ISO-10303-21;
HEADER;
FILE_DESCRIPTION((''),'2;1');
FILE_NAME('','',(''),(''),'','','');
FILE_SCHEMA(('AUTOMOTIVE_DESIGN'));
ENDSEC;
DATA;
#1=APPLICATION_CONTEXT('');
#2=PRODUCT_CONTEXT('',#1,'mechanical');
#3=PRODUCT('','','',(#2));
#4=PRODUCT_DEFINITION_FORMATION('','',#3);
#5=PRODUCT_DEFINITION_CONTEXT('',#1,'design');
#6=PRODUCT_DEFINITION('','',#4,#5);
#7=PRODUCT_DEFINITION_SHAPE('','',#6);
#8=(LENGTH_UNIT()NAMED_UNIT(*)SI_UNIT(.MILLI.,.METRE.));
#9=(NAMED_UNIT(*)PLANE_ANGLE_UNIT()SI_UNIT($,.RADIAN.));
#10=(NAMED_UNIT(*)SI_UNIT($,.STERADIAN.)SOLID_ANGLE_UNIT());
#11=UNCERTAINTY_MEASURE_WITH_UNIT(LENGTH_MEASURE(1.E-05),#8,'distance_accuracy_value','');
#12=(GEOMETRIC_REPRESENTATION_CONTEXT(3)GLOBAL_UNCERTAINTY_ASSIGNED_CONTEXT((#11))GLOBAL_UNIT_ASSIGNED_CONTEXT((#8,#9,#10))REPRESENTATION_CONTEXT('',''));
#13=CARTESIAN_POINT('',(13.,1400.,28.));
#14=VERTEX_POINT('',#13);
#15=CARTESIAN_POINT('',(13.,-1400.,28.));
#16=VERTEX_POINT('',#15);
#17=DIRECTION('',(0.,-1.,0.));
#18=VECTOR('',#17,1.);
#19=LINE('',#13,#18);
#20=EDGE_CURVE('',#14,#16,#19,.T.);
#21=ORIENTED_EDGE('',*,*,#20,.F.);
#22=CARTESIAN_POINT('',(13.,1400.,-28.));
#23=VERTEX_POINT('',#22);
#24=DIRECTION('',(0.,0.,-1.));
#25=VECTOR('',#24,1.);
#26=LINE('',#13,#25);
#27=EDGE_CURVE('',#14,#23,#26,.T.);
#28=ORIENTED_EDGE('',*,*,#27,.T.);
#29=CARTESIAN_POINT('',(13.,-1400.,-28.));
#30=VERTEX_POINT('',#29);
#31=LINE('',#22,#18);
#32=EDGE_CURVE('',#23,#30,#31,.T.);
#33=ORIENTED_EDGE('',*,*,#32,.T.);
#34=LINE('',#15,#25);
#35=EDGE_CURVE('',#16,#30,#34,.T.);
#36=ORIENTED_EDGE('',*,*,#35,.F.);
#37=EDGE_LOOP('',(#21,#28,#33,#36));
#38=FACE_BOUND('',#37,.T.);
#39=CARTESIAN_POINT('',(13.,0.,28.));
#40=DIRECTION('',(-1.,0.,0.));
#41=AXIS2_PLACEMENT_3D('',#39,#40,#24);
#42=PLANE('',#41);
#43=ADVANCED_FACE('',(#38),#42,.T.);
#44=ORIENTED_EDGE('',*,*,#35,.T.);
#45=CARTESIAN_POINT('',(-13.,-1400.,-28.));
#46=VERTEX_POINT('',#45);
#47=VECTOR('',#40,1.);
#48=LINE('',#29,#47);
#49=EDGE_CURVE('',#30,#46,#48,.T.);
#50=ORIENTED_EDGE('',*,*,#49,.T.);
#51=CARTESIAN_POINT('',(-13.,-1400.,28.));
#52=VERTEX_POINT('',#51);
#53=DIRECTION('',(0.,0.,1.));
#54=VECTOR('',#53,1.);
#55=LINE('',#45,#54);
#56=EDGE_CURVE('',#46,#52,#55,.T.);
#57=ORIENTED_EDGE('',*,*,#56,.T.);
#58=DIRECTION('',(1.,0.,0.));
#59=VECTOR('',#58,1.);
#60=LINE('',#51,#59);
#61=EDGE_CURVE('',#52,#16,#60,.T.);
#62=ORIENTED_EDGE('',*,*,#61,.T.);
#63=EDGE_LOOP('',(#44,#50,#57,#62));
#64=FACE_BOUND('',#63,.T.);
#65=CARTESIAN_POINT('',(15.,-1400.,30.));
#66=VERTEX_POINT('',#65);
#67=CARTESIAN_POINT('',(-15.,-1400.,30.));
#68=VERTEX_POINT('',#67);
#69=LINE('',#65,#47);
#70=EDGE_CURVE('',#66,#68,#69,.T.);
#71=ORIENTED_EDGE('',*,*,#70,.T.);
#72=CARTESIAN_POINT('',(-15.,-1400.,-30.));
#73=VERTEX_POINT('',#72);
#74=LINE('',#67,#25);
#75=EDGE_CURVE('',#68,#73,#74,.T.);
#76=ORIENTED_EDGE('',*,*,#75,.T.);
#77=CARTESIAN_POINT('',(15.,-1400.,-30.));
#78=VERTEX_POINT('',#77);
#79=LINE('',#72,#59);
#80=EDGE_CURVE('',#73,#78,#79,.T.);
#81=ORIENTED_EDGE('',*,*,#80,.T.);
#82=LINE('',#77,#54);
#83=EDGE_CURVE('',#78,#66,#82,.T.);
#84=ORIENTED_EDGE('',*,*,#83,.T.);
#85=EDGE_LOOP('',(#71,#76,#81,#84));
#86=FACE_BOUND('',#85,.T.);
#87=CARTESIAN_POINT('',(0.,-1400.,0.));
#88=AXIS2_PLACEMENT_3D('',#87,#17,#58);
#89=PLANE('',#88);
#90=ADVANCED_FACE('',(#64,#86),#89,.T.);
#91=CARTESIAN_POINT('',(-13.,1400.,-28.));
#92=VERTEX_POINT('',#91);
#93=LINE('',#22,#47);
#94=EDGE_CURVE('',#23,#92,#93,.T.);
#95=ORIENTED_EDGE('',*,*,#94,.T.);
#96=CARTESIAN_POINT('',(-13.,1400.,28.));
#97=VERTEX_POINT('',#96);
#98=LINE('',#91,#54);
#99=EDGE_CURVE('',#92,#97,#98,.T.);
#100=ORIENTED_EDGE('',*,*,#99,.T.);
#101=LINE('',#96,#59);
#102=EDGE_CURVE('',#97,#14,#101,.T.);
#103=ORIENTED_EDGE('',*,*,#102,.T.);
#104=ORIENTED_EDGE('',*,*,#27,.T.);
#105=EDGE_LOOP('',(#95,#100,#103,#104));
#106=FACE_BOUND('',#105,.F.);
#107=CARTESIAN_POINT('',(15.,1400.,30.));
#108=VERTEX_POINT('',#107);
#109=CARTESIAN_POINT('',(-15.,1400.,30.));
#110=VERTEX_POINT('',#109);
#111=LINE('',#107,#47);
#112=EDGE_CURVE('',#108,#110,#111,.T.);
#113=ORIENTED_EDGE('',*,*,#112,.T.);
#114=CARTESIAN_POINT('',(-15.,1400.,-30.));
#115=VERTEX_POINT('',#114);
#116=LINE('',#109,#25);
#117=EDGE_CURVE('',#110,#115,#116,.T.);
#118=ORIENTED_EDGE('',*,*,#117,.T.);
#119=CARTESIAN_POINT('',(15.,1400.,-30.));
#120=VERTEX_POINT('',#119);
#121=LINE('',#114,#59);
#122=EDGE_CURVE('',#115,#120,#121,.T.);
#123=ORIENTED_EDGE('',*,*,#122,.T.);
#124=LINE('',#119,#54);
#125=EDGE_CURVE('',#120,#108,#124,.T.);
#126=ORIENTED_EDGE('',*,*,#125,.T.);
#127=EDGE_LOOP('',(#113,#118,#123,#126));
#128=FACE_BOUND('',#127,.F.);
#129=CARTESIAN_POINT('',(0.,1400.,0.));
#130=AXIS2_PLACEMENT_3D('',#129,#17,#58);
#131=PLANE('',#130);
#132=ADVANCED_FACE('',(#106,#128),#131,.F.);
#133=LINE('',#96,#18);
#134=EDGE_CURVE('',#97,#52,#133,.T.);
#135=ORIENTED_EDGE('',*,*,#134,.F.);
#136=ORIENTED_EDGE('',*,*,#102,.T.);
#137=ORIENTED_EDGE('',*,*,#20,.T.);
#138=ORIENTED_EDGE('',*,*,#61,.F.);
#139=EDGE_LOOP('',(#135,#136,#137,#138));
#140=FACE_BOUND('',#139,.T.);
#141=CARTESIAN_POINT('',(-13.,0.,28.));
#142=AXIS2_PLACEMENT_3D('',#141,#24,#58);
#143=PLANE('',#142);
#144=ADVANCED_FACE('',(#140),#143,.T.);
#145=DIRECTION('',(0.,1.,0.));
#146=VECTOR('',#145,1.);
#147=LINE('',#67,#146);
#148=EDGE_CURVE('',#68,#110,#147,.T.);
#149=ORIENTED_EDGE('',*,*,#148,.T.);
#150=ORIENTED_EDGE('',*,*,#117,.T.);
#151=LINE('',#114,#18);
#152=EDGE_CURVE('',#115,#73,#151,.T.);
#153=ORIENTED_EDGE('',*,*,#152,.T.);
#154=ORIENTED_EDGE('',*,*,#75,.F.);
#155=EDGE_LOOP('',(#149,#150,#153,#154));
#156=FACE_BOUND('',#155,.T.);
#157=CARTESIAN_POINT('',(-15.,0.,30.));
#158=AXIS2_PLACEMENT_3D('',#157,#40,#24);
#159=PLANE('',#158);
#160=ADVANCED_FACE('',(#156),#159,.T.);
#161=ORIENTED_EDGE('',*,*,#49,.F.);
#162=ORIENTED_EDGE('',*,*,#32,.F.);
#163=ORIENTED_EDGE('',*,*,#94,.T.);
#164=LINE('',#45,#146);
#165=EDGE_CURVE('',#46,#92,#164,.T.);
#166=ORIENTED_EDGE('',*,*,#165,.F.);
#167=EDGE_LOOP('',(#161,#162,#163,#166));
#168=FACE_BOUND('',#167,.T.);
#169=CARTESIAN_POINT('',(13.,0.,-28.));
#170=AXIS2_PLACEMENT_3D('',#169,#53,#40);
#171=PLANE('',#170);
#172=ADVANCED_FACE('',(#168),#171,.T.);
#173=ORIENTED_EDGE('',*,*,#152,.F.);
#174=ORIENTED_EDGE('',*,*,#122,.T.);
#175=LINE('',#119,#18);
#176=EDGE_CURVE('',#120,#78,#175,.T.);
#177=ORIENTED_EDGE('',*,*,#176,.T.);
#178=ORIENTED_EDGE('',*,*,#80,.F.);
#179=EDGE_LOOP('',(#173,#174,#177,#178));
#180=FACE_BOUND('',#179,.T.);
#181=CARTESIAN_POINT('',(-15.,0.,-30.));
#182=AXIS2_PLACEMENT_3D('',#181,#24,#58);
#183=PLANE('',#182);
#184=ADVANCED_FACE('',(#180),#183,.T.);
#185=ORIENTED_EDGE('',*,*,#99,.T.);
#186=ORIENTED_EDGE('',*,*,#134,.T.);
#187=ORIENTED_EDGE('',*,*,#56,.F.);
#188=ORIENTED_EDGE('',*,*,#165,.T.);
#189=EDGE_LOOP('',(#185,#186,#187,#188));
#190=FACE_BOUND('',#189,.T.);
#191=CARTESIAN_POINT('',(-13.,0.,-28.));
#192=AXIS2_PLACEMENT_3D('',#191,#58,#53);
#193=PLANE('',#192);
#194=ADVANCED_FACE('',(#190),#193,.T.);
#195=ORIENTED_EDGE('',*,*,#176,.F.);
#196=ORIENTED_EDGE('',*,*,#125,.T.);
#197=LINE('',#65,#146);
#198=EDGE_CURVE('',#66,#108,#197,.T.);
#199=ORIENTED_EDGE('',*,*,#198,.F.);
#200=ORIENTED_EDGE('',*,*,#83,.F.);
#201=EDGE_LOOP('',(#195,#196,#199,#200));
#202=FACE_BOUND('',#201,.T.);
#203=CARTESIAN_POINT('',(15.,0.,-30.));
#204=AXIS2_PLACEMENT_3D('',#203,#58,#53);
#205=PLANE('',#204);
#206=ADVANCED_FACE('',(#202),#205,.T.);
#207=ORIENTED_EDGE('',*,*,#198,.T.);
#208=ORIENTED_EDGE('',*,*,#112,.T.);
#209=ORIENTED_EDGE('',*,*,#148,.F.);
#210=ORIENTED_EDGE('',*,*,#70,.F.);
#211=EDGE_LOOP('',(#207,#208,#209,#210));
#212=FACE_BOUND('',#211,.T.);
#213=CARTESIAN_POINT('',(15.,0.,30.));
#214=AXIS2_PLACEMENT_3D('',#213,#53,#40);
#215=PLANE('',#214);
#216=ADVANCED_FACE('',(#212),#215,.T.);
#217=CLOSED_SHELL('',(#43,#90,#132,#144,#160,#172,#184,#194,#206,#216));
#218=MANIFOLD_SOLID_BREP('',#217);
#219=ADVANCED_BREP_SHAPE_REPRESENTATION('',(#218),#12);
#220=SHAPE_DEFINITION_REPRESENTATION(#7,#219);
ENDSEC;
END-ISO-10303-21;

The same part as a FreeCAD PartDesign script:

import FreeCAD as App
import Part
import Sketcher
Q = App.Units.Quantity


def add_polygon(sketch, points):
    """Adds a closed chain of lines whose ends are joined by coincident constraints."""
    first, n = sketch.GeometryCount, len(points)
    for a, b in zip(points, points[1:] + points[:1]):
        sketch.addGeometry(Part.LineSegment(App.Vector(*a, 0), App.Vector(*b, 0)), False)
    for i in range(n):
        sketch.addConstraint(Sketcher.Constraint("Coincident", first + i, 2, first + (i + 1) % n, 1))

doc = App.newDocument("Part")
params = doc.addObject("Spreadsheet::Sheet", "Params")
for row, (alias, value) in enumerate([
    ("sketch1_width", "30 mm"),
    ("sketch1_width2", "26 mm"),
    ("sketch1_height", "60 mm"),
    ("sketch1_height2", "56 mm"),
    ("pad1_length", "2800 mm"),
], start=1):
    params.set(f"A{row}", alias)
    params.set(f"B{row}", "=" + value)
    params.setAlias(f"B{row}", alias)

body = doc.addObject("PartDesign::Body", "Body")

# Sketch on XZ plane
sketch1 = doc.addObject("Sketcher::SketchObject", "Sketch")
body.addObject(sketch1)
sketch1.AttachmentSupport = (doc.XZ_Plane, [""])
sketch1.MapMode = "FlatFace"
add_polygon(sketch1, [(-15, 30), (-15, -30), (15, -30), (15, 30)])  # lines 0-3
add_polygon(sketch1, [(-13, -28), (-13, 28), (13, 28), (13, -28)])  # lines 4-7
sketch1.addConstraint(Sketcher.Constraint("Vertical", 0))
sketch1.addConstraint(Sketcher.Constraint("Horizontal", 1))
sketch1.addConstraint(Sketcher.Constraint("Vertical", 2))
sketch1.addConstraint(Sketcher.Constraint("Horizontal", 3))
sketch1.addConstraint(Sketcher.Constraint("Vertical", 4))
sketch1.addConstraint(Sketcher.Constraint("Horizontal", 5))
sketch1.addConstraint(Sketcher.Constraint("Vertical", 6))
sketch1.addConstraint(Sketcher.Constraint("Horizontal", 7))
sketch1.addConstraint(Sketcher.Constraint("Symmetric", 0, 2, 2, 2, -1, 1))
sketch1.addConstraint(Sketcher.Constraint("Symmetric", 4, 2, 6, 2, -1, 1))
sketch1.addConstraint(Sketcher.Constraint("DistanceX", 1, 1, 1, 2, Q("30 mm")))
sketch1.addConstraint(Sketcher.Constraint("DistanceX", 5, 1, 5, 2, Q("26 mm")))
sketch1.addConstraint(Sketcher.Constraint("DistanceY", 0, 2, 0, 1, Q("60 mm")))
sketch1.addConstraint(Sketcher.Constraint("DistanceY", 4, 1, 4, 2, Q("56 mm")))
sketch1.setExpression("Constraints[18]", "Params.sketch1_width")
sketch1.setExpression("Constraints[19]", "Params.sketch1_width2")
sketch1.setExpression("Constraints[20]", "Params.sketch1_height")
sketch1.setExpression("Constraints[21]", "Params.sketch1_height2")
pad1 = doc.addObject("PartDesign::Pad", "Pad")
body.addObject(pad1)
pad1.Profile = sketch1
pad1.setExpression("Length", "Params.pad1_length")
pad1.Midplane = True

doc.recompute()
